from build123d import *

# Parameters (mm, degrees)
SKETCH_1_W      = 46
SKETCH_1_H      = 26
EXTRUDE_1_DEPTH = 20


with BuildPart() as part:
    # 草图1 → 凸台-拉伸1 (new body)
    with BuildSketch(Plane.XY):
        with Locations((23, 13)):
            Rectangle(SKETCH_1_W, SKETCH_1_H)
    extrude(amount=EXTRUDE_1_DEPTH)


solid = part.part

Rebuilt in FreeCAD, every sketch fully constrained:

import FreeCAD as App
import Part
import Sketcher
from FreeCAD import Vector

doc = App.newDocument("Part")
body = doc.addObject("PartDesign::Body", "Body")

sketch1 = body.newObject("Sketcher::SketchObject", "Sketch")
sketch1.AttachmentSupport = (doc.getObject("XY_Plane"), [""])
sketch1.MapMode = "FlatFace"
sketch1.addGeometry([
    Part.LineSegment(Vector(0, 26, 0), Vector(0, 0, 0)),
    Part.LineSegment(Vector(0, 0, 0), Vector(46, 0, 0)),
    Part.LineSegment(Vector(46, 0, 0), Vector(46, 26, 0)),
    Part.LineSegment(Vector(46, 26, 0), Vector(0, 26, 0)),
], False)
sketch1.addConstraint([
    Sketcher.Constraint("Coincident", 0, 2, 1, 1),
    Sketcher.Constraint("Coincident", 1, 2, 2, 1),
    Sketcher.Constraint("Coincident", 2, 2, 3, 1),
    Sketcher.Constraint("Coincident", 3, 2, 0, 1),
    Sketcher.Constraint("Vertical", 0),
    Sketcher.Constraint("Horizontal", 1),
    Sketcher.Constraint("Vertical", 2),
    Sketcher.Constraint("Horizontal", 3),
    Sketcher.Constraint("Coincident", 0, 2, -1, 1),
    Sketcher.Constraint("DistanceX", 1, 1, 1, 2, 46.0),
    Sketcher.Constraint("DistanceY", 0, 2, 0, 1, 26.0),
])
pad1 = body.newObject("PartDesign::Pad", "Pad")
pad1.Profile = sketch1
pad1.Length = 20

doc.recompute()
